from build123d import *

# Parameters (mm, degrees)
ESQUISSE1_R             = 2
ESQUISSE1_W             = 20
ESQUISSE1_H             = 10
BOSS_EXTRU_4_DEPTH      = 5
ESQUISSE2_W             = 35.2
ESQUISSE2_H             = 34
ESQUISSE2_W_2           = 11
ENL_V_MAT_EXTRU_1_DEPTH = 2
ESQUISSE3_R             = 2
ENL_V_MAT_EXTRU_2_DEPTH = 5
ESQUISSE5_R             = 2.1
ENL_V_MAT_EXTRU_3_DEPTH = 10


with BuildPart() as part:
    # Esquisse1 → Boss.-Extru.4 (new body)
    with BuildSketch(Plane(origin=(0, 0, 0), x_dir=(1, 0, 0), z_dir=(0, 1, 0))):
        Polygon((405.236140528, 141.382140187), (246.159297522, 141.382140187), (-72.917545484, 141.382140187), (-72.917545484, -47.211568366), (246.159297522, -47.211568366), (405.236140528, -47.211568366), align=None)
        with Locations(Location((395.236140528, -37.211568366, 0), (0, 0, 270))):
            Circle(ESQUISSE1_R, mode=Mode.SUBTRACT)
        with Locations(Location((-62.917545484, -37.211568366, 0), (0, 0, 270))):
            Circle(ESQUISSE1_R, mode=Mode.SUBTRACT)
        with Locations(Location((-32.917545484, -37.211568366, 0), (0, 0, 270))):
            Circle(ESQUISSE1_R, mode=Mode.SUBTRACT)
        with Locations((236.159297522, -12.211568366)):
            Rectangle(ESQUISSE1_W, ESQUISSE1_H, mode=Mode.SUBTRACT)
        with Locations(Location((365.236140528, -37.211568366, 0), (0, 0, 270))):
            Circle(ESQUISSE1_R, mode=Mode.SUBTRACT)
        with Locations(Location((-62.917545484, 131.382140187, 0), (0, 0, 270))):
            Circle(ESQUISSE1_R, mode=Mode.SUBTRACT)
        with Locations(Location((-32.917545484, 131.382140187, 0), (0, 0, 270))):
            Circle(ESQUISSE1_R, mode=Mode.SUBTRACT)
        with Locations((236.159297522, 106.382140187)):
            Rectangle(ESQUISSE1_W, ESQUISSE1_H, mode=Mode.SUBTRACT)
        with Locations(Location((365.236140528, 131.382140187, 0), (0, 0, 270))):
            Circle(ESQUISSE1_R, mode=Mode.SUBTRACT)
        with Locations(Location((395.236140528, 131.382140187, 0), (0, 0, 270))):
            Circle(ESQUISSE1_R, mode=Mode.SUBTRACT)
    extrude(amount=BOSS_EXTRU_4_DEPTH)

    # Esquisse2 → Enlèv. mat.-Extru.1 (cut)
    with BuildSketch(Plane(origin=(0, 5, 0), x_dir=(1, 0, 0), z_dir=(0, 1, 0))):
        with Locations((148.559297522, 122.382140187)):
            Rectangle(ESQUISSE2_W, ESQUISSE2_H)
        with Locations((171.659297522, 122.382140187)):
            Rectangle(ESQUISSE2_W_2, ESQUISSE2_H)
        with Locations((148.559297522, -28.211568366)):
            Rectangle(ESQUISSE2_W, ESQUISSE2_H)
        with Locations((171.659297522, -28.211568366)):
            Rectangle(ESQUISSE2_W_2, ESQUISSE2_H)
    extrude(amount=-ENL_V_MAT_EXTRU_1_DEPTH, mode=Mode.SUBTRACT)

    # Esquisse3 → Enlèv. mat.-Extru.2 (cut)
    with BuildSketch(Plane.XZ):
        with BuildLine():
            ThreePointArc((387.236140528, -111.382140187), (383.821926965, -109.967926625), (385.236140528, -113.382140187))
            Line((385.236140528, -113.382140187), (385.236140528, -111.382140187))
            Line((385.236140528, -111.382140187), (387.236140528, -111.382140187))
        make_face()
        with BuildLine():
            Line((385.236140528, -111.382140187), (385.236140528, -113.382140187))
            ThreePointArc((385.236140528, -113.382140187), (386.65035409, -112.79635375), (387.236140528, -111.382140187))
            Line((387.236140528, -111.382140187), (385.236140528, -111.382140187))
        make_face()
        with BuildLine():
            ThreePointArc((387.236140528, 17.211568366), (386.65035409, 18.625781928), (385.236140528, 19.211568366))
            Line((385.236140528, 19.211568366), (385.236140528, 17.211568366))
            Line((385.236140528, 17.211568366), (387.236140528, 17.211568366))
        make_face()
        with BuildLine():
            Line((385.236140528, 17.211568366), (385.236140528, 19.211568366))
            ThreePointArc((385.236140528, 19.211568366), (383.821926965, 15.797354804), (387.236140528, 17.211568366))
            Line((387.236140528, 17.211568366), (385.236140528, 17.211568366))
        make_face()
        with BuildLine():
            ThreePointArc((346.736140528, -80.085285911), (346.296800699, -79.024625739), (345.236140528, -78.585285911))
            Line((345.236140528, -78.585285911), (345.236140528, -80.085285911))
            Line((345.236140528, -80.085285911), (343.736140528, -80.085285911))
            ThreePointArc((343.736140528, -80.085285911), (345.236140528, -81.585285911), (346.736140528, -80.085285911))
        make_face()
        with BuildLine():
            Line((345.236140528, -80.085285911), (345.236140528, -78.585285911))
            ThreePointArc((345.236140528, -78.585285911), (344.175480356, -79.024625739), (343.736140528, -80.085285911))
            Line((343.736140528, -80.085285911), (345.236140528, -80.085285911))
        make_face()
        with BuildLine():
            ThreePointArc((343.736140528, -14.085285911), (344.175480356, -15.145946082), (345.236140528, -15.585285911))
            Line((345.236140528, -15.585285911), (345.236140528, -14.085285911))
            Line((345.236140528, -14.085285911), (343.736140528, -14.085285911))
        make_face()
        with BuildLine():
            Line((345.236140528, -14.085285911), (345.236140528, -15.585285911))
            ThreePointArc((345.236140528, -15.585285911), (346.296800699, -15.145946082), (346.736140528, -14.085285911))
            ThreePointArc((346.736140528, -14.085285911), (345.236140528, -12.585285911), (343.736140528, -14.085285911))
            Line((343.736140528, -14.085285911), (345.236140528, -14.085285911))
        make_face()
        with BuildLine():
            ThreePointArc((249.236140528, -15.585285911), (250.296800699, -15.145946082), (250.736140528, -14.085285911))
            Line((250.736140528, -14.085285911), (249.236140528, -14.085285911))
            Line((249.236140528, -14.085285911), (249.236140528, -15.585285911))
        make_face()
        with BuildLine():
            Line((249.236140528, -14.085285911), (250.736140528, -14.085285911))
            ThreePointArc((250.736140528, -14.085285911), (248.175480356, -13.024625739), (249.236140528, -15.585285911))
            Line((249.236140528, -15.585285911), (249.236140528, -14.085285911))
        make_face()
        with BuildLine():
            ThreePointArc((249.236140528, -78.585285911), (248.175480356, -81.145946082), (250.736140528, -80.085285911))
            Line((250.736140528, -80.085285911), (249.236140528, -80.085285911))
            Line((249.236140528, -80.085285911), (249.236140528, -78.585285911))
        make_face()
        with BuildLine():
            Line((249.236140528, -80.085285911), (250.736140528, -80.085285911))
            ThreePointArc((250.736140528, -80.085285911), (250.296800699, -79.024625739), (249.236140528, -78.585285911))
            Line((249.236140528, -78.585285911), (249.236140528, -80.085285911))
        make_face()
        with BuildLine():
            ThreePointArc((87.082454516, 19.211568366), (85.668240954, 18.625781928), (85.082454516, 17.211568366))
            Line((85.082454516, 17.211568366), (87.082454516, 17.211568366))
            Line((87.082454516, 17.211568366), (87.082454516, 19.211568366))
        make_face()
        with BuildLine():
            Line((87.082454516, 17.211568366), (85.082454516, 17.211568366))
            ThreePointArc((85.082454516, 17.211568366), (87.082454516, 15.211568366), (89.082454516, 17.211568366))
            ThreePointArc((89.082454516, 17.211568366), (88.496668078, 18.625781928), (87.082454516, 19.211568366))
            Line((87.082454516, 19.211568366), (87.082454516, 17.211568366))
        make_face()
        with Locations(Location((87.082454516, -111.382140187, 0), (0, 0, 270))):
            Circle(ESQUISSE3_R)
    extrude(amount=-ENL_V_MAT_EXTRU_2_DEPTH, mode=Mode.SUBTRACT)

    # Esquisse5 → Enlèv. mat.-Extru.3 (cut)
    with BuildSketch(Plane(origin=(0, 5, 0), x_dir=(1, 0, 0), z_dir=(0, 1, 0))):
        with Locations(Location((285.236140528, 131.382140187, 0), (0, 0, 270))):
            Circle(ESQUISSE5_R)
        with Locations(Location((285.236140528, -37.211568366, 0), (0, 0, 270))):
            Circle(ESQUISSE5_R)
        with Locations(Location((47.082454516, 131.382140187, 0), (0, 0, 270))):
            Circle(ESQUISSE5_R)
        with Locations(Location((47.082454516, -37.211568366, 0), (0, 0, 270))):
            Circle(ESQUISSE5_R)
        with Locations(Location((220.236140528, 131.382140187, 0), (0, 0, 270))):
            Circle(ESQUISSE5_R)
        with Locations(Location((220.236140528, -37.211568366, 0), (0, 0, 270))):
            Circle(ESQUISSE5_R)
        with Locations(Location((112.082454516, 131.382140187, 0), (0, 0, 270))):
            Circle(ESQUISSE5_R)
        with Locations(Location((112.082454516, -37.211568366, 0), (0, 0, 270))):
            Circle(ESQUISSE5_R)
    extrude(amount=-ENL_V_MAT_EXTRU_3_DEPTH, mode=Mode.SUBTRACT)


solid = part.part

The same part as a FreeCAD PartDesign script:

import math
import FreeCAD as App
import Part
import Sketcher
Q = App.Units.Quantity

doc = App.newDocument("Part")
body = doc.addObject("PartDesign::Body", "Body")

# Sketch on XZ plane
sketch1 = body.newObject("Sketcher::SketchObject", "Sketch")
sketch1.AttachmentSupport = (doc.getObject("XZ_Plane"), [""])
sketch1.MapMode = "FlatFace"
sketch1.addGeometry([
    Part.LineSegment(App.Vector(405.2, -141.4, 0), App.Vector(-72.9, -141.4, 0)),  # 0
    Part.LineSegment(App.Vector(-72.9, -141.4, 0), App.Vector(-72.9, 47.2, 0)),  # 1
    Part.LineSegment(App.Vector(-72.9, 47.2, 0), App.Vector(405.2, 47.2, 0)),  # 2
    Part.LineSegment(App.Vector(405.2, 47.2, 0), App.Vector(405.2, -141.4, 0)),  # 3
    Part.Circle(App.Vector(-62.9, 37.2, 0), App.Vector(0, 0, 1), 2),  # 4
    Part.Circle(App.Vector(-32.9, 37.2, 0), App.Vector(0, 0, 1), 2),  # 5
    Part.LineSegment(App.Vector(246.2, 17.2, 0), App.Vector(226.2, 17.2, 0)),  # 6
    Part.LineSegment(App.Vector(226.2, 17.2, 0), App.Vector(226.2, 7.2, 0)),  # 7
    Part.LineSegment(App.Vector(226.2, 7.2, 0), App.Vector(246.2, 7.2, 0)),  # 8
    Part.LineSegment(App.Vector(246.2, 7.2, 0), App.Vector(246.2, 17.2, 0)),  # 9
    Part.Circle(App.Vector(365.2, 37.2, 0), App.Vector(0, 0, 1), 2),  # 10
    Part.Circle(App.Vector(395.2, 37.2, 0), App.Vector(0, 0, 1), 2),  # 11
    Part.Circle(App.Vector(-62.9, -131.4, 0), App.Vector(0, 0, 1), 2),  # 12
    Part.Circle(App.Vector(-32.9, -131.4, 0), App.Vector(0, 0, 1), 2),  # 13
    Part.LineSegment(App.Vector(246.2, -101.4, 0), App.Vector(226.2, -101.4, 0)),  # 14
    Part.LineSegment(App.Vector(226.2, -101.4, 0), App.Vector(226.2, -111.4, 0)),  # 15
    Part.LineSegment(App.Vector(226.2, -111.4, 0), App.Vector(246.2, -111.4, 0)),  # 16
    Part.LineSegment(App.Vector(246.2, -111.4, 0), App.Vector(246.2, -101.4, 0)),  # 17
    Part.Circle(App.Vector(365.2, -131.4, 0), App.Vector(0, 0, 1), 2),  # 18
    Part.Circle(App.Vector(395.2, -131.4, 0), App.Vector(0, 0, 1), 2),  # 19
], False)
sketch1.addConstraint([
    Sketcher.Constraint("Coincident", 0, 2, 1, 1),
    Sketcher.Constraint("Coincident", 1, 2, 2, 1),
    Sketcher.Constraint("Coincident", 2, 2, 3, 1),
    Sketcher.Constraint("Coincident", 3, 2, 0, 1),
    Sketcher.Constraint("Coincident", 6, 2, 7, 1),
    Sketcher.Constraint("Coincident", 7, 2, 8, 1),
    Sketcher.Constraint("Coincident", 8, 2, 9, 1),
    Sketcher.Constraint("Coincident", 9, 2, 6, 1),
    Sketcher.Constraint("Coincident", 14, 2, 15, 1),
    Sketcher.Constraint("Coincident", 15, 2, 16, 1),
    Sketcher.Constraint("Coincident", 16, 2, 17, 1),
    Sketcher.Constraint("Coincident", 17, 2, 14, 1),
    Sketcher.Constraint("Horizontal", 0),
    Sketcher.Constraint("Vertical", 1),
    Sketcher.Constraint("Horizontal", 2),
    Sketcher.Constraint("Vertical", 3),
    Sketcher.Constraint("Horizontal", 6),
    Sketcher.Constraint("Vertical", 7),
    Sketcher.Constraint("Horizontal", 8),
    Sketcher.Constraint("Vertical", 9),
    Sketcher.Constraint("Horizontal", 14),
    Sketcher.Constraint("Vertical", 15),
    Sketcher.Constraint("Horizontal", 16),
    Sketcher.Constraint("Vertical", 17),
    Sketcher.Constraint("Equal", 4, 5),
    Sketcher.Constraint("Equal", 5, 10),
    Sketcher.Constraint("Equal", 10, 11),
    Sketcher.Constraint("Equal", 11, 12),
    Sketcher.Constraint("Equal", 12, 13),
    Sketcher.Constraint("Equal", 13, 18),
    Sketcher.Constraint("Equal", 18, 19),
    Sketcher.Constraint("Horizontal", 4, 3, 5, 3),
    Sketcher.Constraint("Horizontal", 5, 3, 10, 3),
    Sketcher.Constraint("Horizontal", 10, 3, 11, 3),
    Sketcher.Constraint("Horizontal", 12, 3, 13, 3),
    Sketcher.Constraint("Horizontal", 13, 3, 18, 3),
    Sketcher.Constraint("Horizontal", 18, 3, 19, 3),
    Sketcher.Constraint("Vertical", 4, 3, 12, 3),
    Sketcher.Constraint("Vertical", 5, 3, 13, 3),
    Sketcher.Constraint("Vertical", 10, 3, 18, 3),
    Sketcher.Constraint("Vertical", 11, 3, 19, 3),
    Sketcher.Constraint("Vertical", 7, 2, 14, 2),
    Sketcher.Constraint("Vertical", 9, 2, 16, 2),
    Sketcher.Constraint("Equal", 9, 15),
    Sketcher.Constraint("Diameter", 4, Q("4 mm")),
    Sketcher.Constraint("DistanceX", 6, 2, 6, 1, Q("20 mm")),
    Sketcher.Constraint("DistanceY", 7, 2, 7, 1, Q("10 mm")),
    Sketcher.Constraint("DistanceX", 4, 3, 5, 3, Q("30 mm")),
    Sketcher.Constraint("DistanceX", 10, 3, 11, 3, Q("30 mm")),
    Sketcher.Constraint("DistanceX", 0, 2, 12, 3, Q("10 mm")),
    Sketcher.Constraint("DistanceY", 0, 2, 12, 3, Q("10 mm")),
    Sketcher.Constraint("DistanceY", 4, 3, 1, 2, Q("10 mm")),
    Sketcher.Constraint("DistanceX", 11, 3, 2, 2, Q("10 mm")),
    Sketcher.Constraint("DistanceY", 6, 2, 10, 3, Q("20 mm")),
    Sketcher.Constraint("DistanceY", 18, 3, 14, 2, Q("30 mm")),
    Sketcher.Constraint("DistanceY", 1, 1, 1, 2, Q("188.593709 mm")),
    Sketcher.Constraint("DistanceX", 0, 2, 0, 1, Q("478.153686 mm")),
    Sketcher.Constraint("DistanceY", -1, 1, 4, 3, Q("37.211568 mm")),
    Sketcher.Constraint("DistanceX", -1, 1, 10, 3, Q("365.236141 mm")),
    Sketcher.Constraint("DistanceX", -1, 1, 6, 2, Q("226.159298 mm")),
])
pad1 = body.newObject("PartDesign::Pad", "Pad")
pad1.Profile = sketch1
pad1.Length = 5
pad1.Reversed = True

# Sketch on XZ plane
sketch2 = body.newObject("Sketcher::SketchObject", "Sketch001")
sketch2.AttachmentSupport = (doc.getObject("XZ_Plane"), [""])
sketch2.MapMode = "FlatFace"
sketch2.AttachmentOffset = App.Placement(App.Vector(0, 0, -5), App.Rotation())
sketch2.addGeometry([
    Part.LineSegment(App.Vector(131, -139, 0), App.Vector(131, -105, 0)),  # 0
    Part.LineSegment(App.Vector(131, -105, 0), App.Vector(177, -105, 0)),  # 1
    Part.LineSegment(App.Vector(177, -105, 0), App.Vector(177, -139, 0)),  # 2
    Part.LineSegment(App.Vector(177, -139, 0), App.Vector(131, -139, 0)),  # 3
    Part.LineSegment(App.Vector(131, 11, 0), App.Vector(131, 45, 0)),  # 4
    Part.LineSegment(App.Vector(131, 45, 0), App.Vector(177, 45, 0)),  # 5
    Part.LineSegment(App.Vector(177, 45, 0), App.Vector(177, 11, 0)),  # 6
    Part.LineSegment(App.Vector(177, 11, 0), App.Vector(131, 11, 0)),  # 7
], False)
sketch2.addConstraint([
    Sketcher.Constraint("Coincident", 0, 2, 1, 1),
    Sketcher.Constraint("Coincident", 1, 2, 2, 1),
    Sketcher.Constraint("Coincident", 2, 2, 3, 1),
    Sketcher.Constraint("Coincident", 3, 2, 0, 1),
    Sketcher.Constraint("Coincident", 4, 2, 5, 1),
    Sketcher.Constraint("Coincident", 5, 2, 6, 1),
    Sketcher.Constraint("Coincident", 6, 2, 7, 1),
    Sketcher.Constraint("Coincident", 7, 2, 4, 1),
    Sketcher.Constraint("Vertical", 0),
    Sketcher.Constraint("Horizontal", 1),
    Sketcher.Constraint("Vertical", 2),
    Sketcher.Constraint("Horizontal", 3),
    Sketcher.Constraint("Vertical", 4),
    Sketcher.Constraint("Horizontal", 5),
    Sketcher.Constraint("Vertical", 6),
    Sketcher.Constraint("Horizontal", 7),
    Sketcher.Constraint("Vertical", 3, 2, 4, 2),
    Sketcher.Constraint("Vertical", 2, 2, 5, 2),
    Sketcher.Constraint("Equal", 2, 4),
    Sketcher.Constraint("DistanceY", 0, 1, 0, 2, Q("34 mm")),
    Sketcher.Constraint("DistanceX", 1, 1, 1, 2, Q("46.2 mm")),
    Sketcher.Constraint("DistanceY", 0, 2, -1, 1, Q("105.38214 mm")),
    Sketcher.Constraint("DistanceY", -1, 1, 4, 2, Q("45.211568 mm")),
    Sketcher.Constraint("DistanceX", -1, 1, 0, 2, Q("130.959298 mm")),
])
pocket1 = body.newObject("PartDesign::Pocket", "Pocket")
pocket1.Profile = sketch2
pocket1.Length = 2
pocket1.Reversed = True

# Sketch on XZ plane
sketch3 = body.newObject("Sketcher::SketchObject", "Sketch002")
sketch3.AttachmentSupport = (doc.getObject("XZ_Plane"), [""])
sketch3.MapMode = "FlatFace"
sketch3.addGeometry([
    Part.ArcOfCircle(Part.Circle(App.Vector(385.2, -111.4, 0), App.Vector(0, 0, 1), 2), math.radians(0), math.radians(270)),  # 0
    Part.ArcOfCircle(Part.Circle(App.Vector(385.2, -111.4, 0), App.Vector(0, 0, 1), 2), math.radians(-90), math.radians(0)),  # 1
    Part.ArcOfCircle(Part.Circle(App.Vector(385.2, 17.2, 0), App.Vector(0, 0, 1), 2), math.radians(0), math.radians(90)),  # 2
    Part.ArcOfCircle(Part.Circle(App.Vector(385.2, 17.2, 0), App.Vector(0, 0, 1), 2), math.radians(90), math.radians(360)),  # 3
    Part.ArcOfCircle(Part.Circle(App.Vector(345.2, -80.1, 0), App.Vector(0, 0, 1), 1.5), math.radians(0), math.radians(90)),  # 4
    Part.ArcOfCircle(Part.Circle(App.Vector(345.2, -80.1, 0), App.Vector(0, 0, 1), 1.5), math.radians(90), math.radians(180)),  # 5
    Part.ArcOfCircle(Part.Circle(App.Vector(345.2, -80.1, 0), App.Vector(0, 0, 1), 1.5), math.radians(180), math.radians(360)),  # 6
    Part.ArcOfCircle(Part.Circle(App.Vector(345.2, -14.1, 0), App.Vector(0, 0, 1), 1.5), math.radians(-180), math.radians(-90)),  # 7
    Part.ArcOfCircle(Part.Circle(App.Vector(345.2, -14.1, 0), App.Vector(0, 0, 1), 1.5), math.radians(-90), math.radians(0)),  # 8
    Part.ArcOfCircle(Part.Circle(App.Vector(345.2, -14.1, 0), App.Vector(0, 0, 1), 1.5), math.radians(0), math.radians(180)),  # 9
    Part.ArcOfCircle(Part.Circle(App.Vector(249.2, -14.1, 0), App.Vector(0, 0, 1), 1.5), math.radians(-90), math.radians(0)),  # 10
    Part.ArcOfCircle(Part.Circle(App.Vector(249.2, -14.1, 0), App.Vector(0, 0, 1), 1.5), math.radians(0), math.radians(270)),  # 11
    Part.ArcOfCircle(Part.Circle(App.Vector(249.2, -80.1, 0), App.Vector(0, 0, 1), 1.5), math.radians(90), math.radians(360)),  # 12
    Part.ArcOfCircle(Part.Circle(App.Vector(249.2, -80.1, 0), App.Vector(0, 0, 1), 1.5), math.radians(0), math.radians(90)),  # 13
    Part.ArcOfCircle(Part.Circle(App.Vector(87.1, 17.2, 0), App.Vector(0, 0, 1), 2), math.radians(90), math.radians(180)),  # 14
    Part.ArcOfCircle(Part.Circle(App.Vector(87.1, 17.2, 0), App.Vector(0, 0, 1), 2), math.radians(180), math.radians(360)),  # 15
    Part.ArcOfCircle(Part.Circle(App.Vector(87.1, 17.2, 0), App.Vector(0, 0, 1), 2), math.radians(0), math.radians(90)),  # 16
    Part.Circle(App.Vector(87.1, -111.4, 0), App.Vector(0, 0, 1), 2),  # 17
], False)
sketch3.addConstraint([
    Sketcher.Constraint("Tangent", 0, 1, 1, 2),
    Sketcher.Constraint("Coincident", 1, 1, 0, 2),
    Sketcher.Constraint("Tangent", 2, 1, 3, 2),
    Sketcher.Constraint("Coincident", 3, 1, 2, 2),
    Sketcher.Constraint("Tangent", 4, 2, 5, 1),
    Sketcher.Constraint("Tangent", 5, 2, 6, 1),
    Sketcher.Constraint("Tangent", 6, 2, 4, 1),
    Sketcher.Constraint("Tangent", 7, 2, 8, 1),
    Sketcher.Constraint("Tangent", 8, 2, 9, 1),
    Sketcher.Constraint("Tangent", 9, 2, 7, 1),
    Sketcher.Constraint("Tangent", 10, 1, 11, 2),
    Sketcher.Constraint("Coincident", 11, 1, 10, 2),
    Sketcher.Constraint("Tangent", 12, 1, 13, 2),
    Sketcher.Constraint("Coincident", 13, 1, 12, 2),
    Sketcher.Constraint("Tangent", 14, 2, 15, 1),
    Sketcher.Constraint("Tangent", 15, 2, 16, 1),
    Sketcher.Constraint("Tangent", 16, 2, 14, 1),
    Sketcher.Constraint("Equal", 1, 2),
    Sketcher.Constraint("Equal", 6, 7),
    Sketcher.Constraint("Equal", 9, 10),
    Sketcher.Constraint("Equal", 11, 12),
    Sketcher.Constraint("Equal", 3, 14),
    Sketcher.Constraint("Equal", 16, 17),
    Sketcher.Constraint("Horizontal", 9, 3, 10, 3),
    Sketcher.Constraint("Horizontal", 6, 3, 12, 3),
    Sketcher.Constraint("Horizontal", 3, 3, 14, 3),
    Sketcher.Constraint("Horizontal", 1, 3, 17, 3),
    Sketcher.Constraint("Horizontal", 17, 3, 0, 1),
    Sketcher.Constraint("Horizontal", 16, 3, 2, 1),
    Sketcher.Constraint("Horizontal", 13, 3, 5, 2),
    Sketcher.Constraint("Horizontal", 5, 2, 6, 2),
    Sketcher.Constraint("Horizontal", 11, 3, 8, 2),
    Sketcher.Constraint("Horizontal", 8, 2, 9, 2),
    Sketcher.Constraint("Horizontal", 9, 2, 11, 1),
    Sketcher.Constraint("Horizontal", 6, 2, 13, 1),
    Sketcher.Constraint("Horizontal", 2, 1, 14, 2),
    Sketcher.Constraint("Horizontal", 14, 2, 15, 2),
    Sketcher.Constraint("Vertical", 1, 3, 2, 3),
    Sketcher.Constraint("Vertical", 6, 3, 7, 3),
    Sketcher.Constraint("Vertical", 11, 3, 12, 3),
    Sketcher.Constraint("Vertical", 16, 3, 17, 3),
    Sketcher.Constraint("Vertical", 3, 3, 1, 1),
    Sketcher.Constraint("Vertical", 1, 1, 3, 1),
    Sketcher.Constraint("Vertical", 9, 3, 4, 2),
    Sketcher.Constraint("Vertical", 4, 2, 7, 2),
    Sketcher.Constraint("Vertical", 13, 3, 10, 1),
    Sketcher.Constraint("Vertical", 10, 1, 12, 1),
    Sketcher.Constraint("Vertical", 17, 3, 16, 2),
    Sketcher.Constraint("Diameter", 17, Q("4 mm")),
    Sketcher.Constraint("Radius", 4, Q("1.5 mm")),
    Sketcher.Constraint("DistanceX", 4, 3, 0, 3, Q("40 mm")),
    Sketcher.Constraint("DistanceY", 5, 3, 7, 3, Q("66 mm")),
    Sketcher.Constraint("DistanceX", 10, 3, 8, 3, Q("96 mm")),
    Sketcher.Constraint("DistanceX", -1, 1, 0, 3, Q("385.236141 mm")),
    Sketcher.Constraint("DistanceY", 0, 3, -1, 1, Q("111.38214 mm")),
    Sketcher.Constraint("DistanceY", -1, 1, 2, 3, Q("17.211568 mm")),
    Sketcher.Constraint("DistanceY", 4, 3, -1, 1, Q("80.085286 mm")),
    Sketcher.Constraint("DistanceX", -1, 1, 14, 3, Q("87.082455 mm")),
])
pocket2 = body.newObject("PartDesign::Pocket", "Pocket001")
pocket2.Profile = sketch3
pocket2.Length = 5

# Sketch on XZ plane
sketch4 = body.newObject("Sketcher::SketchObject", "Sketch003")
sketch4.AttachmentSupport = (doc.getObject("XZ_Plane"), [""])
sketch4.MapMode = "FlatFace"
sketch4.AttachmentOffset = App.Placement(App.Vector(0, 0, -5), App.Rotation())
sketch4.addGeometry([
    Part.Circle(App.Vector(285.2, -131.4, 0), App.Vector(0, 0, 1), 2.1),  # 0
    Part.Circle(App.Vector(285.2, 37.2, 0), App.Vector(0, 0, 1), 2.1),  # 1
    Part.Circle(App.Vector(47.1, -131.4, 0), App.Vector(0, 0, 1), 2.1),  # 2
    Part.Circle(App.Vector(47.1, 37.2, 0), App.Vector(0, 0, 1), 2.1),  # 3
    Part.Circle(App.Vector(220.2, -131.4, 0), App.Vector(0, 0, 1), 2.1),  # 4
    Part.Circle(App.Vector(220.2, 37.2, 0), App.Vector(0, 0, 1), 2.1),  # 5
    Part.Circle(App.Vector(112.1, -131.4, 0), App.Vector(0, 0, 1), 2.1),  # 6
    Part.Circle(App.Vector(112.1, 37.2, 0), App.Vector(0, 0, 1), 2.1),  # 7
], False)
sketch4.addConstraint([
    Sketcher.Constraint("Equal", 0, 1),
    Sketcher.Constraint("Equal", 1, 2),
    Sketcher.Constraint("Equal", 2, 3),
    Sketcher.Constraint("Equal", 3, 4),
    Sketcher.Constraint("Equal", 4, 5),
    Sketcher.Constraint("Equal", 5, 6),
    Sketcher.Constraint("Equal", 6, 7),
    Sketcher.Constraint("Horizontal", 0, 3, 2, 3),
    Sketcher.Constraint("Horizontal", 1, 3, 3, 3),
    Sketcher.Constraint("Horizontal", 2, 3, 4, 3),
    Sketcher.Constraint("Horizontal", 3, 3, 5, 3),
    Sketcher.Constraint("Horizontal", 4, 3, 6, 3),
    Sketcher.Constraint("Horizontal", 5, 3, 7, 3),
    Sketcher.Constraint("Vertical", 0, 3, 1, 3),
    Sketcher.Constraint("Vertical", 2, 3, 3, 3),
    Sketcher.Constraint("Vertical", 4, 3, 5, 3),
    Sketcher.Constraint("Vertical", 6, 3, 7, 3),
    Sketcher.Constraint("Diameter", 0, Q("4.2 mm")),
    Sketcher.Constraint("DistanceX", 4, 3, 0, 3, Q("65 mm")),
    Sketcher.Constraint("DistanceX", 2, 3, 6, 3, Q("65 mm")),
    Sketcher.Constraint("DistanceX", -1, 1, 0, 3, Q("285.236141 mm")),
    Sketcher.Constraint("DistanceY", 0, 3, -1, 1, Q("131.38214 mm")),
    Sketcher.Constraint("DistanceY", -1, 1, 1, 3, Q("37.211568 mm")),
    Sketcher.Constraint("DistanceX", -1, 1, 2, 3, Q("47.082455 mm")),
])
pocket3 = body.newObject("PartDesign::Pocket", "Pocket002")
pocket3.Profile = sketch4
pocket3.Length = 10
pocket3.Reversed = True

doc.recompute()
